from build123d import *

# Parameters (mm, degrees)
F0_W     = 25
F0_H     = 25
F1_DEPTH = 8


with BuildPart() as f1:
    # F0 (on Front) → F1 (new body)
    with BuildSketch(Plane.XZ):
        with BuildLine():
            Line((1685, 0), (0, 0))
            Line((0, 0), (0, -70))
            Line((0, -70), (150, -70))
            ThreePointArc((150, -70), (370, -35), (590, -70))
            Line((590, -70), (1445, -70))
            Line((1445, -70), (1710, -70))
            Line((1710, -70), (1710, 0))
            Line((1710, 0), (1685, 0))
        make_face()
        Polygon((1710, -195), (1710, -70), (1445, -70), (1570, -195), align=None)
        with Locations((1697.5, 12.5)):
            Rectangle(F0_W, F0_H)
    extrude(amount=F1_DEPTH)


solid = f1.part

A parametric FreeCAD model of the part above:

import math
import FreeCAD as App
import Part
import Sketcher
Q = App.Units.Quantity

doc = App.newDocument("Part")
body = doc.addObject("PartDesign::Body", "Body")

sketch1 = body.newObject("Sketcher::SketchObject", "Sketch")
sketch1.AttachmentSupport = (doc.getObject("XZ_Plane"), [""])
sketch1.MapMode = "FlatFace"
sketch1.addGeometry(Part.LineSegment(App.Vector(0, 0, 0), App.Vector(0, -70, 0)), False)
sketch1.addGeometry(Part.LineSegment(App.Vector(0, -70, 0), App.Vector(150, -70, 0)), False)
sketch1.addGeometry(Part.ArcOfCircle(Part.Circle(App.Vector(370, -744, 0), App.Vector(0, 0, 1), 709), math.radians(72), math.radians(108)), False)
sketch1.addGeometry(Part.LineSegment(App.Vector(590, -70, 0), App.Vector(1445, -70, 0)), False)
sketch1.addGeometry(Part.LineSegment(App.Vector(1445, -70, 0), App.Vector(1570, -195, 0)), False)
sketch1.addGeometry(Part.LineSegment(App.Vector(1570, -195, 0), App.Vector(1710, -195, 0)), False)
sketch1.addGeometry(Part.LineSegment(App.Vector(1710, -195, 0), App.Vector(1710, 25, 0)), False)
sketch1.addGeometry(Part.LineSegment(App.Vector(1710, 25, 0), App.Vector(1685, 25, 0)), False)
sketch1.addGeometry(Part.LineSegment(App.Vector(1685, 25, 0), App.Vector(1685, 0, 0)), False)
sketch1.addGeometry(Part.LineSegment(App.Vector(1685, 0, 0), App.Vector(0, 0, 0)), False)
sketch1.addConstraint(Sketcher.Constraint("Coincident", 0, 2, 1, 1))
sketch1.addConstraint(Sketcher.Constraint("Coincident", 1, 2, 2, 2))
sketch1.addConstraint(Sketcher.Constraint("Coincident", 2, 1, 3, 1))
sketch1.addConstraint(Sketcher.Constraint("Coincident", 3, 2, 4, 1))
sketch1.addConstraint(Sketcher.Constraint("Coincident", 4, 2, 5, 1))
sketch1.addConstraint(Sketcher.Constraint("Coincident", 5, 2, 6, 1))
sketch1.addConstraint(Sketcher.Constraint("Coincident", 6, 2, 7, 1))
sketch1.addConstraint(Sketcher.Constraint("Coincident", 7, 2, 8, 1))
sketch1.addConstraint(Sketcher.Constraint("Coincident", 8, 2, 9, 1))
sketch1.addConstraint(Sketcher.Constraint("Coincident", 9, 2, 0, 1))
sketch1.addConstraint(Sketcher.Constraint("Vertical", 0))
sketch1.addConstraint(Sketcher.Constraint("Horizontal", 1))
sketch1.addConstraint(Sketcher.Constraint("Horizontal", 3))
sketch1.addConstraint(Sketcher.Constraint("Horizontal", 5))
sketch1.addConstraint(Sketcher.Constraint("Vertical", 6))
sketch1.addConstraint(Sketcher.Constraint("Horizontal", 7))
sketch1.addConstraint(Sketcher.Constraint("Vertical", 8))
sketch1.addConstraint(Sketcher.Constraint("Horizontal", 9))
sketch1.addConstraint(Sketcher.Constraint("Coincident", 9, 2, -1, 1))
sketch1.addConstraint(Sketcher.Constraint("Horizontal", 1, 2, 2, 1))
sketch1.addConstraint(Sketcher.Constraint("Equal", 7, 8))
sketch1.addConstraint(Sketcher.Constraint("DistanceX", 1, 1, 1, 2, 150.0))
sketch1.addConstraint(Sketcher.Constraint("DistanceX", 3, 1, 3, 2, 855.0))
sketch1.addConstraint(Sketcher.Constraint("DistanceX", 5, 1, 5, 2, 140.0))
sketch1.addConstraint(Sketcher.Constraint("DistanceX", 7, 2, 7, 1, 25.0))
sketch1.addConstraint(Sketcher.Constraint("DistanceX", 9, 2, 9, 1, 1685.0))
sketch1.addConstraint(Sketcher.Constraint("DistanceY", 0, 2, 0, 1, 70.0))
sketch1.addConstraint(Sketcher.Constraint("DistanceY", 6, 1, 6, 2, 220.0))
sketch1.addConstraint(Sketcher.Constraint("Angle", 4, Q("-45 deg")))
sketch1.addConstraint(Sketcher.Constraint("Radius", 2, 708.928571))
pad1 = body.newObject("PartDesign::Pad", "Pad")
pad1.Profile = sketch1
pad1.Length = 8

doc.recompute()
